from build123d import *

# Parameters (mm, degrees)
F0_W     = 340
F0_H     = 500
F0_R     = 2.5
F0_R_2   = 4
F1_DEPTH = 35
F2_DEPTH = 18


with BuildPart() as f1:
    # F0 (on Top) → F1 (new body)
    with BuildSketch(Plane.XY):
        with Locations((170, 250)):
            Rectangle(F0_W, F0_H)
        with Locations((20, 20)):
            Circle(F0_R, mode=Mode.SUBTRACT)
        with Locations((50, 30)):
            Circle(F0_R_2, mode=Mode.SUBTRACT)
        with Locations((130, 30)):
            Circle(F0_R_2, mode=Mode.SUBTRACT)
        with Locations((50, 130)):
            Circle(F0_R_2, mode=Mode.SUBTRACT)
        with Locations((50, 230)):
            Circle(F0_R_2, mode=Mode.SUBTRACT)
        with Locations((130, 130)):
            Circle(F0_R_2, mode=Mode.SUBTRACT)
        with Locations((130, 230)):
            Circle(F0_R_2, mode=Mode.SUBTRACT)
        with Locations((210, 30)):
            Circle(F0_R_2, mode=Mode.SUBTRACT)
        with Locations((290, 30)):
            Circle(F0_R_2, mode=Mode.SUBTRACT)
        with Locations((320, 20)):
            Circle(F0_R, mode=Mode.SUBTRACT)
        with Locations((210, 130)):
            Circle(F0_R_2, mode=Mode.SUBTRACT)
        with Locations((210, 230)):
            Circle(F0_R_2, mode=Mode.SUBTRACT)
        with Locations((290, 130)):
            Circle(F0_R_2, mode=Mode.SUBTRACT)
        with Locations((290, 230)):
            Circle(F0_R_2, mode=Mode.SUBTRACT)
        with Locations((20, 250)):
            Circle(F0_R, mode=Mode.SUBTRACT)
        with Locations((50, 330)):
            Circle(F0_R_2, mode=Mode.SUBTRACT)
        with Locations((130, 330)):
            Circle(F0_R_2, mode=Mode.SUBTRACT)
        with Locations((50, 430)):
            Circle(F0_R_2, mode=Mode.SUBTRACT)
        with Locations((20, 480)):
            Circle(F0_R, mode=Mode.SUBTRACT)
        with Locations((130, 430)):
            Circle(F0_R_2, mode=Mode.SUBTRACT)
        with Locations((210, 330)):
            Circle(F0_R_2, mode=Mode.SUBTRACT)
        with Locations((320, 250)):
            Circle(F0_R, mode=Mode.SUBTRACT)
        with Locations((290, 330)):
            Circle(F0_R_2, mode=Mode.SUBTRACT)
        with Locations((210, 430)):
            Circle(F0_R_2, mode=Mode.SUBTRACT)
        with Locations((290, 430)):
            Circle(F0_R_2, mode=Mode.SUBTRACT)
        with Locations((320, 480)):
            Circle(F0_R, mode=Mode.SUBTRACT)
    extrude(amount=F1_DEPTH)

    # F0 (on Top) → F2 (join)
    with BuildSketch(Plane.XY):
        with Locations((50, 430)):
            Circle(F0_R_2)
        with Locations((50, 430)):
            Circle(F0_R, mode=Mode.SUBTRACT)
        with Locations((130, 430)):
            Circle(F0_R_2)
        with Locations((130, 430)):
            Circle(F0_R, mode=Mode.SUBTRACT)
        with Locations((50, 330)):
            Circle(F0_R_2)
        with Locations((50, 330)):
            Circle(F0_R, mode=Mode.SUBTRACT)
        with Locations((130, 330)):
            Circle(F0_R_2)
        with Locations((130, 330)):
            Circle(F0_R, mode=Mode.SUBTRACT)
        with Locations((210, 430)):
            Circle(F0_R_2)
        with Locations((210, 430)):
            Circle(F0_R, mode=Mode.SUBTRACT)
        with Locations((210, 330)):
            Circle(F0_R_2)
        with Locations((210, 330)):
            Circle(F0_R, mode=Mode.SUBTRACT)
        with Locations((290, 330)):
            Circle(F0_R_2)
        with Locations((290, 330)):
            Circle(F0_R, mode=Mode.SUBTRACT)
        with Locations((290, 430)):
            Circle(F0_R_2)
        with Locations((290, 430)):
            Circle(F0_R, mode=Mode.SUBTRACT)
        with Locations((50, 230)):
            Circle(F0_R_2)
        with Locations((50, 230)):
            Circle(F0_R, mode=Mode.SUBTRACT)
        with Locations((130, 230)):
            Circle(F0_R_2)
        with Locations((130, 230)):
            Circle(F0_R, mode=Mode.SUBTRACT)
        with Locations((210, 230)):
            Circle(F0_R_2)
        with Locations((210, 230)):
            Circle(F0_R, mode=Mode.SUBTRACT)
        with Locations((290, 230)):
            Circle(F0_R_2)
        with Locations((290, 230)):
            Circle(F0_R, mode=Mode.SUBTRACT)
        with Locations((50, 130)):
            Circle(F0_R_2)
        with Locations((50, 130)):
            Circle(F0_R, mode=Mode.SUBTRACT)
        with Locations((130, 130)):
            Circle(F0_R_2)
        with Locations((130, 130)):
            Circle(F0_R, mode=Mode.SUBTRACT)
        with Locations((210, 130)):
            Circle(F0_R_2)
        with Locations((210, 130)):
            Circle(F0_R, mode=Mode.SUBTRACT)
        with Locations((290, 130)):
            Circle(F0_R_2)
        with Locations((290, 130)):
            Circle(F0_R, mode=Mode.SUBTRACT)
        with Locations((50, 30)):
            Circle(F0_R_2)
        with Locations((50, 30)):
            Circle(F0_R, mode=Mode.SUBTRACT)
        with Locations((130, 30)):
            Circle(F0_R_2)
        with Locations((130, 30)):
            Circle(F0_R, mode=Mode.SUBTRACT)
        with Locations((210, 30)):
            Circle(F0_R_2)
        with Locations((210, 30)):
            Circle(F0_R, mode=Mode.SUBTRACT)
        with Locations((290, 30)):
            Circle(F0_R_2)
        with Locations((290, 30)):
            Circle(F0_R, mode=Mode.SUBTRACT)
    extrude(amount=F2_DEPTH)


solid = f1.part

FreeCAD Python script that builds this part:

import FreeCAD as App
import Part
import Sketcher
from FreeCAD import Vector
Q = App.Units.Quantity


def add_polygon(sketch, points):
    """Adds a closed chain of lines whose ends are joined by coincident constraints."""
    first, n = sketch.GeometryCount, len(points)
    for a, b in zip(points, points[1:] + points[:1]):
        sketch.addGeometry(Part.LineSegment(App.Vector(*a, 0), App.Vector(*b, 0)), False)
    for i in range(n):
        sketch.addConstraint(Sketcher.Constraint("Coincident", first + i, 2, first + (i + 1) % n, 1))

doc = App.newDocument("Part")
body = doc.addObject("PartDesign::Body", "Body")

# Sketch on XY plane
sketch1 = doc.addObject("Sketcher::SketchObject", "Sketch")
body.addObject(sketch1)
sketch1.AttachmentSupport = (doc.XY_Plane, [""])
sketch1.MapMode = "FlatFace"
add_polygon(sketch1, [(0, 500), (0, 0), (340, 0), (340, 500)])  # lines 0-3
sketch1.addGeometry(Part.Circle(Vector(20, 20, 0), Vector(0, 0, 1), 2.5), False)  # 4
sketch1.addGeometry(Part.Circle(Vector(50, 30, 0), Vector(0, 0, 1), 4), False)  # 5
sketch1.addGeometry(Part.Circle(Vector(50, 130, 0), Vector(0, 0, 1), 4), False)  # 6
sketch1.addGeometry(Part.Circle(Vector(130, 30, 0), Vector(0, 0, 1), 4), False)  # 7
sketch1.addGeometry(Part.Circle(Vector(130, 130, 0), Vector(0, 0, 1), 4), False)  # 8
sketch1.addGeometry(Part.Circle(Vector(50, 230, 0), Vector(0, 0, 1), 4), False)  # 9
sketch1.addGeometry(Part.Circle(Vector(130, 230, 0), Vector(0, 0, 1), 4), False)  # 10
sketch1.addGeometry(Part.Circle(Vector(210, 30, 0), Vector(0, 0, 1), 4), False)  # 11
sketch1.addGeometry(Part.Circle(Vector(210, 130, 0), Vector(0, 0, 1), 4), False)  # 12
sketch1.addGeometry(Part.Circle(Vector(290, 30, 0), Vector(0, 0, 1), 4), False)  # 13
sketch1.addGeometry(Part.Circle(Vector(320, 20, 0), Vector(0, 0, 1), 2.5), False)  # 14
sketch1.addGeometry(Part.Circle(Vector(290, 130, 0), Vector(0, 0, 1), 4), False)  # 15
sketch1.addGeometry(Part.Circle(Vector(210, 230, 0), Vector(0, 0, 1), 4), False)  # 16
sketch1.addGeometry(Part.Circle(Vector(290, 230, 0), Vector(0, 0, 1), 4), False)  # 17
sketch1.addGeometry(Part.Circle(Vector(20, 250, 0), Vector(0, 0, 1), 2.5), False)  # 18
sketch1.addGeometry(Part.Circle(Vector(50, 330, 0), Vector(0, 0, 1), 4), False)  # 19
sketch1.addGeometry(Part.Circle(Vector(130, 330, 0), Vector(0, 0, 1), 4), False)  # 20
sketch1.addGeometry(Part.Circle(Vector(50, 430, 0), Vector(0, 0, 1), 4), False)  # 21
sketch1.addGeometry(Part.Circle(Vector(20, 480, 0), Vector(0, 0, 1), 2.5), False)  # 22
sketch1.addGeometry(Part.Circle(Vector(130, 430, 0), Vector(0, 0, 1), 4), False)  # 23
sketch1.addGeometry(Part.Circle(Vector(210, 330, 0), Vector(0, 0, 1), 4), False)  # 24
sketch1.addGeometry(Part.Circle(Vector(320, 250, 0), Vector(0, 0, 1), 2.5), False)  # 25
sketch1.addGeometry(Part.Circle(Vector(290, 330, 0), Vector(0, 0, 1), 4), False)  # 26
sketch1.addGeometry(Part.Circle(Vector(210, 430, 0), Vector(0, 0, 1), 4), False)  # 27
sketch1.addGeometry(Part.Circle(Vector(290, 430, 0), Vector(0, 0, 1), 4), False)  # 28
sketch1.addGeometry(Part.Circle(Vector(320, 480, 0), Vector(0, 0, 1), 2.5), False)  # 29
sketch1.addConstraint([
    Sketcher.Constraint("Vertical", 0),
    Sketcher.Constraint("Horizontal", 1),
    Sketcher.Constraint("Vertical", 2),
    Sketcher.Constraint("Horizontal", 3),
    Sketcher.Constraint("Coincident", 0, 2, -1, 1),
    Sketcher.Constraint("Equal", 5, 6),
    Sketcher.Constraint("Equal", 6, 7),
    Sketcher.Constraint("Equal", 7, 8),
    Sketcher.Constraint("Equal", 8, 9),
    Sketcher.Constraint("Equal", 9, 10),
    Sketcher.Constraint("Equal", 10, 11),
    Sketcher.Constraint("Equal", 11, 12),
    Sketcher.Constraint("Equal", 12, 13),
    Sketcher.Constraint("Equal", 4, 14),
    Sketcher.Constraint("Equal", 13, 15),
    Sketcher.Constraint("Equal", 15, 16),
    Sketcher.Constraint("Equal", 16, 17),
    Sketcher.Constraint("Equal", 14, 18),
    Sketcher.Constraint("Equal", 17, 19),
    Sketcher.Constraint("Equal", 19, 20),
    Sketcher.Constraint("Equal", 20, 21),
    Sketcher.Constraint("Equal", 18, 22),
    Sketcher.Constraint("Equal", 21, 23),
    Sketcher.Constraint("Equal", 23, 24),
    Sketcher.Constraint("Equal", 22, 25),
    Sketcher.Constraint("Equal", 24, 26),
    Sketcher.Constraint("Equal", 26, 27),
    Sketcher.Constraint("Equal", 27, 28),
    Sketcher.Constraint("Equal", 25, 29),
    Sketcher.Constraint("Horizontal", 5, 3, 7, 3),
    Sketcher.Constraint("Horizontal", 6, 3, 8, 3),
    Sketcher.Constraint("Horizontal", 9, 3, 10, 3),
    Sketcher.Constraint("Horizontal", 7, 3, 11, 3),
    Sketcher.Constraint("Horizontal", 8, 3, 12, 3),
    Sketcher.Constraint("Horizontal", 11, 3, 13, 3),
    Sketcher.Constraint("Horizontal", 4, 3, 14, 3),
    Sketcher.Constraint("Horizontal", 12, 3, 15, 3),
    Sketcher.Constraint("Horizontal", 10, 3, 16, 3),
    Sketcher.Constraint("Horizontal", 16, 3, 17, 3),
    Sketcher.Constraint("Horizontal", 19, 3, 20, 3),
    Sketcher.Constraint("Horizontal", 21, 3, 23, 3),
    Sketcher.Constraint("Horizontal", 20, 3, 24, 3),
    Sketcher.Constraint("Horizontal", 18, 3, 25, 3),
    Sketcher.Constraint("Horizontal", 24, 3, 26, 3),
    Sketcher.Constraint("Horizontal", 23, 3, 27, 3),
    Sketcher.Constraint("Horizontal", 27, 3, 28, 3),
    Sketcher.Constraint("Horizontal", 22, 3, 29, 3),
    Sketcher.Constraint("Vertical", 5, 3, 6, 3),
    Sketcher.Constraint("Vertical", 7, 3, 8, 3),
    Sketcher.Constraint("Vertical", 6, 3, 9, 3),
    Sketcher.Constraint("Vertical", 8, 3, 10, 3),
    Sketcher.Constraint("Vertical", 11, 3, 12, 3),
    Sketcher.Constraint("Vertical", 13, 3, 15, 3),
    Sketcher.Constraint("Vertical", 12, 3, 16, 3),
    Sketcher.Constraint("Vertical", 15, 3, 17, 3),
    Sketcher.Constraint("Vertical", 4, 3, 18, 3),
    Sketcher.Constraint("Vertical", 9, 3, 19, 3),
    Sketcher.Constraint("Vertical", 10, 3, 20, 3),
    Sketcher.Constraint("Vertical", 19, 3, 21, 3),
    Sketcher.Constraint("Vertical", 18, 3, 22, 3),
    Sketcher.Constraint("Vertical", 20, 3, 23, 3),
    Sketcher.Constraint("Vertical", 16, 3, 24, 3),
    Sketcher.Constraint("Vertical", 14, 3, 25, 3),
    Sketcher.Constraint("Vertical", 17, 3, 26, 3),
    Sketcher.Constraint("Vertical", 24, 3, 27, 3),
    Sketcher.Constraint("Vertical", 26, 3, 28, 3),
    Sketcher.Constraint("Vertical", 25, 3, 29, 3),
    Sketcher.Constraint("Diameter", 4, Q("5 mm")),
    Sketcher.Constraint("Diameter", 5, Q("8 mm")),
    Sketcher.Constraint("DistanceX", 1, 1, 1, 2, Q("340 mm")),
    Sketcher.Constraint("DistanceY", 0, 2, 0, 1, Q("500 mm")),
    Sketcher.Constraint("DistanceX", -1, 1, 4, 3, Q("20 mm")),
    Sketcher.Constraint("DistanceY", -1, 1, 4, 3, Q("20 mm")),
    Sketcher.Constraint("DistanceX", -1, 1, 5, 3, Q("50 mm")),
    Sketcher.Constraint("DistanceY", -1, 1, 5, 3, Q("30 mm")),
    Sketcher.Constraint("DistanceY", -1, 1, 6, 3, Q("130 mm")),
    Sketcher.Constraint("DistanceX", -1, 1, 7, 3, Q("130 mm")),
    Sketcher.Constraint("DistanceY", -1, 1, 9, 3, Q("230 mm")),
    Sketcher.Constraint("DistanceX", -1, 1, 11, 3, Q("210 mm")),
    Sketcher.Constraint("DistanceX", -1, 1, 13, 3, Q("290 mm")),
    Sketcher.Constraint("DistanceX", -1, 1, 14, 3, Q("320 mm")),
    Sketcher.Constraint("DistanceY", -1, 1, 18, 3, Q("250 mm")),
    Sketcher.Constraint("DistanceY", -1, 1, 19, 3, Q("330 mm")),
    Sketcher.Constraint("DistanceY", -1, 1, 21, 3, Q("430 mm")),
    Sketcher.Constraint("DistanceY", -1, 1, 22, 3, Q("480 mm")),
])
pad1 = doc.addObject("PartDesign::Pad", "Pad")
body.addObject(pad1)
pad1.Profile = sketch1
pad1.Length = 35

# Sketch on XY plane
sketch2 = doc.addObject("Sketcher::SketchObject", "Sketch001")
body.addObject(sketch2)
sketch2.AttachmentSupport = (doc.XY_Plane, [""])
sketch2.MapMode = "FlatFace"
sketch2.addGeometry([
    Part.Circle(Vector(50, 430, 0), Vector(0, 0, 1), 4),  # 0
    Part.Circle(Vector(50, 430, 0), Vector(0, 0, 1), 2.5),  # 1
    Part.Circle(Vector(130, 430, 0), Vector(0, 0, 1), 4),  # 2
    Part.Circle(Vector(130, 430, 0), Vector(0, 0, 1), 2.5),  # 3
    Part.Circle(Vector(50, 330, 0), Vector(0, 0, 1), 4),  # 4
    Part.Circle(Vector(50, 330, 0), Vector(0, 0, 1), 2.5),  # 5
    Part.Circle(Vector(130, 330, 0), Vector(0, 0, 1), 4),  # 6
    Part.Circle(Vector(130, 330, 0), Vector(0, 0, 1), 2.5),  # 7
    Part.Circle(Vector(210, 430, 0), Vector(0, 0, 1), 4),  # 8
    Part.Circle(Vector(210, 430, 0), Vector(0, 0, 1), 2.5),  # 9
    Part.Circle(Vector(210, 330, 0), Vector(0, 0, 1), 4),  # 10
    Part.Circle(Vector(210, 330, 0), Vector(0, 0, 1), 2.5),  # 11
    Part.Circle(Vector(290, 330, 0), Vector(0, 0, 1), 4),  # 12
    Part.Circle(Vector(290, 330, 0), Vector(0, 0, 1), 2.5),  # 13
    Part.Circle(Vector(290, 430, 0), Vector(0, 0, 1), 4),  # 14
    Part.Circle(Vector(290, 430, 0), Vector(0, 0, 1), 2.5),  # 15
    Part.Circle(Vector(50, 230, 0), Vector(0, 0, 1), 4),  # 16
    Part.Circle(Vector(50, 230, 0), Vector(0, 0, 1), 2.5),  # 17
    Part.Circle(Vector(130, 230, 0), Vector(0, 0, 1), 4),  # 18
    Part.Circle(Vector(130, 230, 0), Vector(0, 0, 1), 2.5),  # 19
    Part.Circle(Vector(210, 230, 0), Vector(0, 0, 1), 4),  # 20
    Part.Circle(Vector(210, 230, 0), Vector(0, 0, 1), 2.5),  # 21
    Part.Circle(Vector(290, 230, 0), Vector(0, 0, 1), 4),  # 22
    Part.Circle(Vector(290, 230, 0), Vector(0, 0, 1), 2.5),  # 23
    Part.Circle(Vector(50, 130, 0), Vector(0, 0, 1), 4),  # 24
    Part.Circle(Vector(50, 130, 0), Vector(0, 0, 1), 2.5),  # 25
    Part.Circle(Vector(130, 130, 0), Vector(0, 0, 1), 4),  # 26
    Part.Circle(Vector(130, 130, 0), Vector(0, 0, 1), 2.5),  # 27
    Part.Circle(Vector(210, 130, 0), Vector(0, 0, 1), 4),  # 28
    Part.Circle(Vector(210, 130, 0), Vector(0, 0, 1), 2.5),  # 29
    Part.Circle(Vector(290, 130, 0), Vector(0, 0, 1), 4),  # 30
    Part.Circle(Vector(290, 130, 0), Vector(0, 0, 1), 2.5),  # 31
    Part.Circle(Vector(50, 30, 0), Vector(0, 0, 1), 4),  # 32
    Part.Circle(Vector(50, 30, 0), Vector(0, 0, 1), 2.5),  # 33
    Part.Circle(Vector(130, 30, 0), Vector(0, 0, 1), 4),  # 34
    Part.Circle(Vector(130, 30, 0), Vector(0, 0, 1), 2.5),  # 35
    Part.Circle(Vector(210, 30, 0), Vector(0, 0, 1), 4),  # 36
    Part.Circle(Vector(210, 30, 0), Vector(0, 0, 1), 2.5),  # 37
    Part.Circle(Vector(290, 30, 0), Vector(0, 0, 1), 4),  # 38
    Part.Circle(Vector(290, 30, 0), Vector(0, 0, 1), 2.5),  # 39
], False)
sketch2.addConstraint([
    Sketcher.Constraint("Coincident", 1, 3, 0, 3),
    Sketcher.Constraint("Coincident", 3, 3, 2, 3),
    Sketcher.Constraint("Coincident", 5, 3, 4, 3),
    Sketcher.Constraint("Coincident", 7, 3, 6, 3),
    Sketcher.Constraint("Coincident", 9, 3, 8, 3),
    Sketcher.Constraint("Coincident", 11, 3, 10, 3),
    Sketcher.Constraint("Coincident", 13, 3, 12, 3),
    Sketcher.Constraint("Coincident", 15, 3, 14, 3),
    Sketcher.Constraint("Coincident", 17, 3, 16, 3),
    Sketcher.Constraint("Coincident", 19, 3, 18, 3),
    Sketcher.Constraint("Coincident", 21, 3, 20, 3),
    Sketcher.Constraint("Coincident", 23, 3, 22, 3),
    Sketcher.Constraint("Coincident", 25, 3, 24, 3),
    Sketcher.Constraint("Coincident", 27, 3, 26, 3),
    Sketcher.Constraint("Coincident", 29, 3, 28, 3),
    Sketcher.Constraint("Coincident", 31, 3, 30, 3),
    Sketcher.Constraint("Coincident", 33, 3, 32, 3),
    Sketcher.Constraint("Coincident", 35, 3, 34, 3),
    Sketcher.Constraint("Coincident", 37, 3, 36, 3),
    Sketcher.Constraint("Coincident", 39, 3, 38, 3),
    Sketcher.Constraint("Equal", 0, 2),
    Sketcher.Constraint("Equal", 1, 3),
    Sketcher.Constraint("Equal", 2, 4),
    Sketcher.Constraint("Equal", 3, 5),
    Sketcher.Constraint("Equal", 4, 6),
    Sketcher.Constraint("Equal", 5, 7),
    Sketcher.Constraint("Equal", 6, 8),
    Sketcher.Constraint("Equal", 7, 9),
    Sketcher.Constraint("Equal", 8, 10),
    Sketcher.Constraint("Equal", 9, 11),
    Sketcher.Constraint("Equal", 10, 12),
    Sketcher.Constraint("Equal", 11, 13),
    Sketcher.Constraint("Equal", 12, 14),
    Sketcher.Constraint("Equal", 13, 15),
    Sketcher.Constraint("Equal", 14, 16),
    Sketcher.Constraint("Equal", 15, 17),
    Sketcher.Constraint("Equal", 16, 18),
    Sketcher.Constraint("Equal", 17, 19),
    Sketcher.Constraint("Equal", 18, 20),
    Sketcher.Constraint("Equal", 19, 21),
    Sketcher.Constraint("Equal", 20, 22),
    Sketcher.Constraint("Equal", 21, 23),
    Sketcher.Constraint("Equal", 22, 24),
    Sketcher.Constraint("Equal", 23, 25),
    Sketcher.Constraint("Equal", 24, 26),
    Sketcher.Constraint("Equal", 25, 27),
    Sketcher.Constraint("Equal", 26, 28),
    Sketcher.Constraint("Equal", 27, 29),
    Sketcher.Constraint("Equal", 28, 30),
    Sketcher.Constraint("Equal", 29, 31),
    Sketcher.Constraint("Equal", 30, 32),
    Sketcher.Constraint("Equal", 31, 33),
    Sketcher.Constraint("Equal", 32, 34),
    Sketcher.Constraint("Equal", 33, 35),
    Sketcher.Constraint("Equal", 34, 36),
    Sketcher.Constraint("Equal", 35, 37),
    Sketcher.Constraint("Equal", 36, 38),
    Sketcher.Constraint("Equal", 37, 39),
    Sketcher.Constraint("Horizontal", 1, 3, 2, 3),
    Sketcher.Constraint("Horizontal", 5, 3, 6, 3),
    Sketcher.Constraint("Horizontal", 3, 3, 8, 3),
    Sketcher.Constraint("Horizontal", 7, 3, 10, 3),
    Sketcher.Constraint("Horizontal", 11, 3, 12, 3),
    Sketcher.Constraint("Horizontal", 9, 3, 14, 3),
    Sketcher.Constraint("Horizontal", 17, 3, 18, 3),
    Sketcher.Constraint("Horizontal", 19, 3, 20, 3),
    Sketcher.Constraint("Horizontal", 21, 3, 22, 3),
    Sketcher.Constraint("Horizontal", 25, 3, 26, 3),
    Sketcher.Constraint("Horizontal", 27, 3, 28, 3),
    Sketcher.Constraint("Horizontal", 29, 3, 30, 3),
    Sketcher.Constraint("Horizontal", 33, 3, 34, 3),
    Sketcher.Constraint("Horizontal", 35, 3, 36, 3),
    Sketcher.Constraint("Horizontal", 37, 3, 38, 3),
    Sketcher.Constraint("Vertical", 1, 3, 4, 3),
    Sketcher.Constraint("Vertical", 3, 3, 6, 3),
    Sketcher.Constraint("Vertical", 9, 3, 10, 3),
    Sketcher.Constraint("Vertical", 13, 3, 14, 3),
    Sketcher.Constraint("Vertical", 5, 3, 16, 3),
    Sketcher.Constraint("Vertical", 7, 3, 18, 3),
    Sketcher.Constraint("Vertical", 11, 3, 20, 3),
    Sketcher.Constraint("Vertical", 15, 3, 22, 3),
    Sketcher.Constraint("Vertical", 17, 3, 24, 3),
    Sketcher.Constraint("Vertical", 19, 3, 26, 3),
    Sketcher.Constraint("Vertical", 21, 3, 28, 3),
    Sketcher.Constraint("Vertical", 23, 3, 30, 3),
    Sketcher.Constraint("Vertical", 25, 3, 32, 3),
    Sketcher.Constraint("Vertical", 27, 3, 34, 3),
    Sketcher.Constraint("Vertical", 29, 3, 36, 3),
    Sketcher.Constraint("Vertical", 31, 3, 38, 3),
    Sketcher.Constraint("Diameter", 0, Q("8 mm")),
    Sketcher.Constraint("Diameter", 1, Q("5 mm")),
    Sketcher.Constraint("DistanceX", -1, 1, 0, 3, Q("50 mm")),
    Sketcher.Constraint("DistanceY", -1, 1, 0, 3, Q("430 mm")),
    Sketcher.Constraint("DistanceX", -1, 1, 2, 3, Q("130 mm")),
    Sketcher.Constraint("DistanceY", -1, 1, 4, 3, Q("330 mm")),
    Sketcher.Constraint("DistanceX", -1, 1, 8, 3, Q("210 mm")),
    Sketcher.Constraint("DistanceX", -1, 1, 12, 3, Q("290 mm")),
    Sketcher.Constraint("DistanceY", -1, 1, 16, 3, Q("230 mm")),
    Sketcher.Constraint("DistanceY", -1, 1, 24, 3, Q("130 mm")),
    Sketcher.Constraint("DistanceY", -1, 1, 32, 3, Q("30 mm")),
])
pad2 = doc.addObject("PartDesign::Pad", "Pad001")
body.addObject(pad2)
pad2.Profile = sketch2
pad2.Length = 18

doc.recompute()
